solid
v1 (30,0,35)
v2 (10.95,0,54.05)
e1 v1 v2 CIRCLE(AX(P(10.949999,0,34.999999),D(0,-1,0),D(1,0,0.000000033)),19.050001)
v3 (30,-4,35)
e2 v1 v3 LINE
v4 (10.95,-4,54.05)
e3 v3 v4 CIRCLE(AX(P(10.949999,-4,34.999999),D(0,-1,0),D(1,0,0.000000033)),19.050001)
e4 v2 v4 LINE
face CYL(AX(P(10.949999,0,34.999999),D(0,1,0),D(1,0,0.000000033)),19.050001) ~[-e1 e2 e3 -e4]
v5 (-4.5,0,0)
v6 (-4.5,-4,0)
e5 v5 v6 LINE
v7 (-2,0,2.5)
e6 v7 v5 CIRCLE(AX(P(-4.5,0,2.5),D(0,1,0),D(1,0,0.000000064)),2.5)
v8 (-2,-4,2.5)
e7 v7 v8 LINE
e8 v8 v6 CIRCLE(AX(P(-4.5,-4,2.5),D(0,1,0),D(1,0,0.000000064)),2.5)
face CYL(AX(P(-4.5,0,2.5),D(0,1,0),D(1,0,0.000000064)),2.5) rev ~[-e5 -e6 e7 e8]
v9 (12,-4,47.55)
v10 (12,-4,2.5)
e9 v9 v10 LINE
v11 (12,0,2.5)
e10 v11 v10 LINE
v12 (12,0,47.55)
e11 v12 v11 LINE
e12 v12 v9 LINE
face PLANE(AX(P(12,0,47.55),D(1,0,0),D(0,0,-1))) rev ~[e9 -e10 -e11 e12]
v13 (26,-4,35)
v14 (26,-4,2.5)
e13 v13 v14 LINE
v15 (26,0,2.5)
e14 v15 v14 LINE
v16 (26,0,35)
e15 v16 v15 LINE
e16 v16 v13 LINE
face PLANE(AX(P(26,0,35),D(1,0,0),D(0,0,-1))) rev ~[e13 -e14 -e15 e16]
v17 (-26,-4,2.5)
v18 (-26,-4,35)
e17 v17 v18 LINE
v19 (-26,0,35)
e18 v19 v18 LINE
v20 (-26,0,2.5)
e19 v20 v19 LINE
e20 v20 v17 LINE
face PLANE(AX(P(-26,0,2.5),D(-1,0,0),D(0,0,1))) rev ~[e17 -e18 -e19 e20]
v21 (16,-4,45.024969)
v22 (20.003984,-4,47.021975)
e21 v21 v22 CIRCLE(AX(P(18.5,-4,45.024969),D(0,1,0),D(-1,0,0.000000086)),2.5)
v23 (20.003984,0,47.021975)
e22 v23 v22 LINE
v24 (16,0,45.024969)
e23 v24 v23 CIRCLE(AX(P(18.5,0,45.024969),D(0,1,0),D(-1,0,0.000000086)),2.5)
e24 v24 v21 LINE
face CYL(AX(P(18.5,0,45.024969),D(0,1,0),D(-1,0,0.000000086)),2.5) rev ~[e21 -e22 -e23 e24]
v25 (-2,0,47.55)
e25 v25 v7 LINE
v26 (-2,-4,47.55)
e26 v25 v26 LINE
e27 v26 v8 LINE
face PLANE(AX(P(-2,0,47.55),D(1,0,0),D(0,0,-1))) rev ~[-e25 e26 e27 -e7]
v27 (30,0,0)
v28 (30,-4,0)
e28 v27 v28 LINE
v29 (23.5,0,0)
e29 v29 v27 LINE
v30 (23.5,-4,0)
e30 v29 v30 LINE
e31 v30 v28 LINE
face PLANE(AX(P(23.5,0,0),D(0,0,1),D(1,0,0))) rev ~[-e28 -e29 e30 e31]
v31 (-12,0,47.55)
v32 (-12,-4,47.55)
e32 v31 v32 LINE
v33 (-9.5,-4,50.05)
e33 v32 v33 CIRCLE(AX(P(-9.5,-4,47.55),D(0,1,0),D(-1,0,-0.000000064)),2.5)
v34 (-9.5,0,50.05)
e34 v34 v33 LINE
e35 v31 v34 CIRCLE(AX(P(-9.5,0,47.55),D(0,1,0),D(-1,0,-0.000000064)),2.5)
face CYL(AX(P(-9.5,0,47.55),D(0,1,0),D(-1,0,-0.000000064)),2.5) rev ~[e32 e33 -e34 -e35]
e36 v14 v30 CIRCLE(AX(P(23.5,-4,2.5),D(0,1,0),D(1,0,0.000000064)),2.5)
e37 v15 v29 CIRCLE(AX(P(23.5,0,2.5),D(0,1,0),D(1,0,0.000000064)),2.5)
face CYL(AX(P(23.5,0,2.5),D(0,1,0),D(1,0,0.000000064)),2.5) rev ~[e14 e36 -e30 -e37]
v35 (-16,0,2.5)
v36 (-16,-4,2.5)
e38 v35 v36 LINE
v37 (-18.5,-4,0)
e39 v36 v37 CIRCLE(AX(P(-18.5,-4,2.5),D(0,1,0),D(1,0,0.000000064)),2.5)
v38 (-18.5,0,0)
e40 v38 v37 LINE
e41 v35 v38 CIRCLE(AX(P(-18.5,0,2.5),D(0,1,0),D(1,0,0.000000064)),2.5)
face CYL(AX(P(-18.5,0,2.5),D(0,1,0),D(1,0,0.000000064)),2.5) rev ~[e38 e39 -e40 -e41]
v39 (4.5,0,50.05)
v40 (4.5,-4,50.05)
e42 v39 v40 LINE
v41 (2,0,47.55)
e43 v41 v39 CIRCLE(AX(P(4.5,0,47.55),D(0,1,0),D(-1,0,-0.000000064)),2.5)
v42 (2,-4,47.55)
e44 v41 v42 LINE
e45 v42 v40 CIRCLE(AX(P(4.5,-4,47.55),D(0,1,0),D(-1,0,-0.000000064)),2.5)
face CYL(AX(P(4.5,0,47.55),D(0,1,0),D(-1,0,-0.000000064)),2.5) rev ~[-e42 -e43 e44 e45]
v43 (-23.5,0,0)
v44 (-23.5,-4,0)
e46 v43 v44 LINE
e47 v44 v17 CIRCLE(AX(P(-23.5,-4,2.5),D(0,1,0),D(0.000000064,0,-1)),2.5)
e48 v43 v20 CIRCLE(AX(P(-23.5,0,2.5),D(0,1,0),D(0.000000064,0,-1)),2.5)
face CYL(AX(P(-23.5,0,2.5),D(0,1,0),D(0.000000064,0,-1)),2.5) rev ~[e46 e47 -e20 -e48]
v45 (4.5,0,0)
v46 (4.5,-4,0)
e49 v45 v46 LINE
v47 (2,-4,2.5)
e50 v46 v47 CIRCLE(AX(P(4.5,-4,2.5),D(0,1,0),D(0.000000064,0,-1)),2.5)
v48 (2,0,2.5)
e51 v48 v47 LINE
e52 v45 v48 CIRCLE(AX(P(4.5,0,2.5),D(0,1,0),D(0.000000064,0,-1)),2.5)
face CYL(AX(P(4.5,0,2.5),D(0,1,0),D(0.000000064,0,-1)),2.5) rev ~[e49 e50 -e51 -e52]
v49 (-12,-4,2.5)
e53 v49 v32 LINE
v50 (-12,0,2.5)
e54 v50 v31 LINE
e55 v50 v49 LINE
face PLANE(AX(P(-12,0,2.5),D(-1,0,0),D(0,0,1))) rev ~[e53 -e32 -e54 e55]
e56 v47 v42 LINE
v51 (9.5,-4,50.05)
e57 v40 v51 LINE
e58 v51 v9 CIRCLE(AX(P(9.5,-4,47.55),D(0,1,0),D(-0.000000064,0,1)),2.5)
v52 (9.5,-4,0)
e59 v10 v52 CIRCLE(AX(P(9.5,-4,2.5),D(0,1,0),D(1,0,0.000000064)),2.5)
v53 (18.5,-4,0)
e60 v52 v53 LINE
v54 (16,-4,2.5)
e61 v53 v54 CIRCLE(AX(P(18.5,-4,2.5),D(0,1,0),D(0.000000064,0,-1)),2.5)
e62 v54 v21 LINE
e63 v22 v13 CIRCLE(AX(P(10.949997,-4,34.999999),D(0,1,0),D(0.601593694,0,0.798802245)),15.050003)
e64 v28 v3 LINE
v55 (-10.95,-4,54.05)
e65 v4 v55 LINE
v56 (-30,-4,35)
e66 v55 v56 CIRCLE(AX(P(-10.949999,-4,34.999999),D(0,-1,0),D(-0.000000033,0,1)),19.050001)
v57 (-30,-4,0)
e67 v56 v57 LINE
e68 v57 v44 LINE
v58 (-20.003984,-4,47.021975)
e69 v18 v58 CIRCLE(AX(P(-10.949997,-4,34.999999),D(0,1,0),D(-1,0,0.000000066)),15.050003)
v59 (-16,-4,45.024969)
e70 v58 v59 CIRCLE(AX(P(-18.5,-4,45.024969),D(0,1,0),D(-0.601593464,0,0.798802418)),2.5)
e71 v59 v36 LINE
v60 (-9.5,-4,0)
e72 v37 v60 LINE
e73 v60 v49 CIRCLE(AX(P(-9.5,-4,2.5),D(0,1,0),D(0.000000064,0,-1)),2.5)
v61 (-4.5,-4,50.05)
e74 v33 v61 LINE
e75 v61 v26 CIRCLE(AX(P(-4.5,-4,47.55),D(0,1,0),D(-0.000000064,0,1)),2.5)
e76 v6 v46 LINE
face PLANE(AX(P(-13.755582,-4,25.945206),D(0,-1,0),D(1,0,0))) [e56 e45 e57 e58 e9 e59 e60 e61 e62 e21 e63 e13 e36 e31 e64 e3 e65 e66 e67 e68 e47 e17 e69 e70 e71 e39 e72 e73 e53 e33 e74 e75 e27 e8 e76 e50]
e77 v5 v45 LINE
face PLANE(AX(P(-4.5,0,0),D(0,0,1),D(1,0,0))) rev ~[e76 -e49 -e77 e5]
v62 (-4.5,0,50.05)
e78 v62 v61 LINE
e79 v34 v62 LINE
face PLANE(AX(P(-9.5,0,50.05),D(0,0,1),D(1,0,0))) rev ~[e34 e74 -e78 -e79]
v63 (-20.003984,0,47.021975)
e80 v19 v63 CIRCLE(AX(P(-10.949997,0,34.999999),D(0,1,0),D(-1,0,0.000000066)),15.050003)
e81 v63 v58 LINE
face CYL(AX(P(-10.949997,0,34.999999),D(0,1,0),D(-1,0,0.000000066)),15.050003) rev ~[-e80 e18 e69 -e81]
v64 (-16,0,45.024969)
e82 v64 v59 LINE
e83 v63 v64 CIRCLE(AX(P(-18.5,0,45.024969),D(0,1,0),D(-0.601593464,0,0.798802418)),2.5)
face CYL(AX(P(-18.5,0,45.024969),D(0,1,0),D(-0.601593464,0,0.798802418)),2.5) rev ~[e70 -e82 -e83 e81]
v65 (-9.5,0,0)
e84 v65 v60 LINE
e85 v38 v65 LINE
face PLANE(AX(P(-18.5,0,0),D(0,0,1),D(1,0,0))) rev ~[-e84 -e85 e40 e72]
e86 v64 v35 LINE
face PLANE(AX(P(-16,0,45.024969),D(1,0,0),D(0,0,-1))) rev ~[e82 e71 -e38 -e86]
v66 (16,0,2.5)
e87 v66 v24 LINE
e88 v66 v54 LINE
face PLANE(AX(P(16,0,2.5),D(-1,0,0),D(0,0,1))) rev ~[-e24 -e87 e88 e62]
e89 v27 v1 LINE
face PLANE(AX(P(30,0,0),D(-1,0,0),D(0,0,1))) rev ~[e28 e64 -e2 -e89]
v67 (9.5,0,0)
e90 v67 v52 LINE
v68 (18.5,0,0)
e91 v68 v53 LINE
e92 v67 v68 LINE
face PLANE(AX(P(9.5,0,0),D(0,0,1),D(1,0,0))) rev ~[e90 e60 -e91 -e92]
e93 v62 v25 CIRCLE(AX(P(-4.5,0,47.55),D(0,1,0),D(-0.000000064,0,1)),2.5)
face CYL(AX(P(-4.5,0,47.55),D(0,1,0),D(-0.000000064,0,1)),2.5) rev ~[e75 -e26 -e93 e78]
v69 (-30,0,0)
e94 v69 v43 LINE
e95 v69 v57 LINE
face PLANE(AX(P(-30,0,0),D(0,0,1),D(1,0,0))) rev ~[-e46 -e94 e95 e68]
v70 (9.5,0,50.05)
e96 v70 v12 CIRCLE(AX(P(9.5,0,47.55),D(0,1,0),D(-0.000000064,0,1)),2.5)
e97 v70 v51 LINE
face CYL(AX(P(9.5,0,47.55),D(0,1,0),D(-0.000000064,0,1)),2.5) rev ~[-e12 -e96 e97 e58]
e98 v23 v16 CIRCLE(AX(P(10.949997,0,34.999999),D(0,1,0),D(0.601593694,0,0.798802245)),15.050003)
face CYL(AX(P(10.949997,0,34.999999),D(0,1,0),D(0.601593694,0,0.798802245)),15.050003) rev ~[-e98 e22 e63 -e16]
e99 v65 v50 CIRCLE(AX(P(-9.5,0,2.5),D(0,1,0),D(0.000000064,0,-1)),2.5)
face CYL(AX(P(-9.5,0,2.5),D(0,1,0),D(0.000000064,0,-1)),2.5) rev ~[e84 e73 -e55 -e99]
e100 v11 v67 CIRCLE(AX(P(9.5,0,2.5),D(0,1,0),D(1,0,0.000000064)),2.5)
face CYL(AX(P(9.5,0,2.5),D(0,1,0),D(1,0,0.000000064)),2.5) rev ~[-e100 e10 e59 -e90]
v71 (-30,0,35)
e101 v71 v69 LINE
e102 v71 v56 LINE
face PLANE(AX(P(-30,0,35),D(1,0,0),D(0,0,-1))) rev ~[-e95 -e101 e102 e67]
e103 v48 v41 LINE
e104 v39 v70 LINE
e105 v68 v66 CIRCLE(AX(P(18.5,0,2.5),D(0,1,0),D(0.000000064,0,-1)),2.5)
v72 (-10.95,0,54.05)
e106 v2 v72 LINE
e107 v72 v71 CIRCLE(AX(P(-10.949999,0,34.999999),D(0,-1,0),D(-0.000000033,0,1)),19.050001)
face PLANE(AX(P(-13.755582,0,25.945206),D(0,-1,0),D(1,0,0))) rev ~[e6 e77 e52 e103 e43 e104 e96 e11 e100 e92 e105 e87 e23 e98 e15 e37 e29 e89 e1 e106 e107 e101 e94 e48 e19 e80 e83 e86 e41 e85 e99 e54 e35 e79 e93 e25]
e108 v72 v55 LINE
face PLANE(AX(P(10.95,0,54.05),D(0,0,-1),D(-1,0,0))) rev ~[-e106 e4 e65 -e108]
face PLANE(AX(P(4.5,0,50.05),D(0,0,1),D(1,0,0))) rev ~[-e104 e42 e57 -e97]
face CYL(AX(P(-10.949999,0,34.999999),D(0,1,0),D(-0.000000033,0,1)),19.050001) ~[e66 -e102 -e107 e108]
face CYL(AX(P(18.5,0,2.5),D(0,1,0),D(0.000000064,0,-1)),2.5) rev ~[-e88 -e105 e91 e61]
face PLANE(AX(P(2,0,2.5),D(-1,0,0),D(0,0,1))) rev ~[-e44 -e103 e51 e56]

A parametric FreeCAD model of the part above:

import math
import FreeCAD as App
import Part
import Sketcher
Q = App.Units.Quantity

doc = App.newDocument("Part")
body = doc.addObject("PartDesign::Body", "Body")

# Sketch on XZ plane
sketch1 = doc.addObject("Sketcher::SketchObject", "Sketch")
body.addObject(sketch1)
sketch1.AttachmentSupport = (doc.XZ_Plane, [""])
sketch1.MapMode = "FlatFace"
sketch1.addGeometry([
    Part.LineSegment(App.Vector(-4.5, 0, 0), App.Vector(4.5, 0, 0)),  # 0
    Part.ArcOfCircle(Part.Circle(App.Vector(4.5, 2.5, 0), App.Vector(0, 0, 1), 2.5), math.radians(179.999996), math.radians(270.000004)),  # 1
    Part.LineSegment(App.Vector(2, 2.5, 0), App.Vector(2, 47.55, 0)),  # 2
    Part.ArcOfCircle(Part.Circle(App.Vector(4.5, 47.55, 0), App.Vector(0, 0, 1), 2.5), math.radians(89.999996), math.radians(180.000004)),  # 3
    Part.LineSegment(App.Vector(4.5, 50.05, 0), App.Vector(9.5, 50.05, 0)),  # 4
    Part.ArcOfCircle(Part.Circle(App.Vector(9.5, 47.55, 0), App.Vector(0, 0, 1), 2.5), math.radians(-0.000004), math.radians(90.000004)),  # 5
    Part.LineSegment(App.Vector(12, 47.55, 0), App.Vector(12, 2.5, 0)),  # 6
    Part.ArcOfCircle(Part.Circle(App.Vector(9.5, 2.5, 0), App.Vector(0, 0, 1), 2.5), math.radians(-90.000004), math.radians(0.000004)),  # 7
    Part.LineSegment(App.Vector(9.5, 0, 0), App.Vector(18.5, 0, 0)),  # 8
    Part.ArcOfCircle(Part.Circle(App.Vector(18.5, 2.5, 0), App.Vector(0, 0, 1), 2.5), math.radians(179.999996), math.radians(270.000004)),  # 9
    Part.LineSegment(App.Vector(16, 2.5, 0), App.Vector(16, 45.024969, 0)),  # 10
    Part.ArcOfCircle(Part.Circle(App.Vector(18.5, 45.024969, 0), App.Vector(0, 0, 1), 2.5), math.radians(53.015893), math.radians(179.999995)),  # 11
    Part.ArcOfCircle(Part.Circle(App.Vector(10.949997, 34.999999, 0), App.Vector(0, 0, 1), 15.050003), math.radians(0.000004), math.radians(53.015877)),  # 12
    Part.LineSegment(App.Vector(26, 35, 0), App.Vector(26, 2.5, 0)),  # 13
    Part.ArcOfCircle(Part.Circle(App.Vector(23.5, 2.5, 0), App.Vector(0, 0, 1), 2.5), math.radians(-90.000004), math.radians(0.000004)),  # 14
    Part.LineSegment(App.Vector(23.5, 0, 0), App.Vector(30, 0, 0)),  # 15
    Part.LineSegment(App.Vector(30, 0, 0), App.Vector(30, 35, 0)),  # 16
    Part.ArcOfCircle(Part.Circle(App.Vector(10.949999, 34.999999, 0), App.Vector(0, 0, 1), 19.050001), math.radians(0.000002), math.radians(89.999998)),  # 17
    Part.LineSegment(App.Vector(10.95, 54.05, 0), App.Vector(-10.95, 54.05, 0)),  # 18
    Part.ArcOfCircle(Part.Circle(App.Vector(-10.949999, 34.999999, 0), App.Vector(0, 0, 1), 19.050001), math.radians(90.000002), math.radians(179.999998)),  # 19
    Part.LineSegment(App.Vector(-30, 35, 0), App.Vector(-30, 0, 0)),  # 20
    Part.LineSegment(App.Vector(-30, 0, 0), App.Vector(-23.5, 0, 0)),  # 21
    Part.ArcOfCircle(Part.Circle(App.Vector(-23.5, 2.5, 0), App.Vector(0, 0, 1), 2.5), math.radians(179.999996), math.radians(270.000004)),  # 22
    Part.LineSegment(App.Vector(-26, 2.5, 0), App.Vector(-26, 35, 0)),  # 23
    Part.ArcOfCircle(Part.Circle(App.Vector(-10.949997, 34.999999, 0), App.Vector(0, 0, 1), 15.050003), math.radians(126.984123), math.radians(179.999996)),  # 24
    Part.ArcOfCircle(Part.Circle(App.Vector(-18.5, 45.024969, 0), App.Vector(0, 0, 1), 2.5), math.radians(0.000005), math.radians(126.984107)),  # 25
    Part.LineSegment(App.Vector(-16, 45.024969, 0), App.Vector(-16, 2.5, 0)),  # 26
    Part.ArcOfCircle(Part.Circle(App.Vector(-18.5, 2.5, 0), App.Vector(0, 0, 1), 2.5), math.radians(-90.000004), math.radians(0.000004)),  # 27
    Part.LineSegment(App.Vector(-18.5, 0, 0), App.Vector(-9.5, 0, 0)),  # 28
    Part.ArcOfCircle(Part.Circle(App.Vector(-9.5, 2.5, 0), App.Vector(0, 0, 1), 2.5), math.radians(179.999996), math.radians(270.000004)),  # 29
    Part.LineSegment(App.Vector(-12, 2.5, 0), App.Vector(-12, 47.55, 0)),  # 30
    Part.ArcOfCircle(Part.Circle(App.Vector(-9.5, 47.55, 0), App.Vector(0, 0, 1), 2.5), math.radians(89.999996), math.radians(180.000004)),  # 31
    Part.LineSegment(App.Vector(-9.5, 50.05, 0), App.Vector(-4.5, 50.05, 0)),  # 32
    Part.ArcOfCircle(Part.Circle(App.Vector(-4.5, 47.55, 0), App.Vector(0, 0, 1), 2.5), math.radians(-0.000004), math.radians(90.000004)),  # 33
    Part.LineSegment(App.Vector(-2, 47.55, 0), App.Vector(-2, 2.5, 0)),  # 34
    Part.ArcOfCircle(Part.Circle(App.Vector(-4.5, 2.5, 0), App.Vector(0, 0, 1), 2.5), math.radians(-90.000004), math.radians(0.000004)),  # 35
], False)
sketch1.addConstraint([
    Sketcher.Constraint("Tangent", 0, 2, 1, 2),
    Sketcher.Constraint("Tangent", 1, 1, 2, 1),
    Sketcher.Constraint("Tangent", 2, 2, 3, 2),
    Sketcher.Constraint("Tangent", 3, 1, 4, 1),
    Sketcher.Constraint("Tangent", 4, 2, 5, 2),
    Sketcher.Constraint("Tangent", 5, 1, 6, 1),
    Sketcher.Constraint("Tangent", 6, 2, 7, 2),
    Sketcher.Constraint("Tangent", 7, 1, 8, 1),
    Sketcher.Constraint("Tangent", 8, 2, 9, 2),
    Sketcher.Constraint("Tangent", 9, 1, 10, 1),
    Sketcher.Constraint("Tangent", 10, 2, 11, 2),
    Sketcher.Constraint("Tangent", 11, 1, 12, 2),
    Sketcher.Constraint("Tangent", 12, 1, 13, 1),
    Sketcher.Constraint("Tangent", 13, 2, 14, 2),
    Sketcher.Constraint("Tangent", 14, 1, 15, 1),
    Sketcher.Constraint("Coincident", 15, 2, 16, 1),
    Sketcher.Constraint("Tangent", 16, 2, 17, 1),
    Sketcher.Constraint("Tangent", 17, 2, 18, 1),
    Sketcher.Constraint("Tangent", 18, 2, 19, 1),
    Sketcher.Constraint("Tangent", 19, 2, 20, 1),
    Sketcher.Constraint("Coincident", 20, 2, 21, 1),
    Sketcher.Constraint("Tangent", 21, 2, 22, 2),
    Sketcher.Constraint("Tangent", 22, 1, 23, 1),
    Sketcher.Constraint("Tangent", 23, 2, 24, 2),
    Sketcher.Constraint("Tangent", 24, 1, 25, 2),
    Sketcher.Constraint("Tangent", 25, 1, 26, 1),
    Sketcher.Constraint("Tangent", 26, 2, 27, 2),
    Sketcher.Constraint("Tangent", 27, 1, 28, 1),
    Sketcher.Constraint("Tangent", 28, 2, 29, 2),
    Sketcher.Constraint("Tangent", 29, 1, 30, 1),
    Sketcher.Constraint("Tangent", 30, 2, 31, 2),
    Sketcher.Constraint("Tangent", 31, 1, 32, 1),
    Sketcher.Constraint("Tangent", 32, 2, 33, 2),
    Sketcher.Constraint("Tangent", 33, 1, 34, 1),
    Sketcher.Constraint("Tangent", 34, 2, 35, 2),
    Sketcher.Constraint("Tangent", 35, 1, 0, 1),
    Sketcher.Constraint("Horizontal", 0),
    Sketcher.Constraint("Vertical", 2),
    Sketcher.Constraint("Horizontal", 4),
    Sketcher.Constraint("Vertical", 6),
    Sketcher.Constraint("Horizontal", 8),
    Sketcher.Constraint("Vertical", 10),
    Sketcher.Constraint("Vertical", 13),
    Sketcher.Constraint("Horizontal", 15),
    Sketcher.Constraint("Vertical", 16),
    Sketcher.Constraint("Horizontal", 18),
    Sketcher.Constraint("Vertical", 20),
    Sketcher.Constraint("Horizontal", 21),
    Sketcher.Constraint("Vertical", 23),
    Sketcher.Constraint("Vertical", 26),
    Sketcher.Constraint("Horizontal", 28),
    Sketcher.Constraint("Vertical", 30),
    Sketcher.Constraint("Horizontal", 32),
    Sketcher.Constraint("Vertical", 34),
    Sketcher.Constraint("Coincident", 17, 3, 12, 3),
    Sketcher.Constraint("Coincident", 24, 3, 19, 3),
    Sketcher.Constraint("Equal", 1, 3),
    Sketcher.Constraint("Equal", 3, 5),
    Sketcher.Constraint("Equal", 5, 7),
    Sketcher.Constraint("Equal", 7, 9),
    Sketcher.Constraint("Equal", 9, 11),
    Sketcher.Constraint("Equal", 11, 14),
    Sketcher.Constraint("Equal", 17, 19),
    Sketcher.Constraint("Equal", 14, 22),
    Sketcher.Constraint("Equal", 12, 24),
    Sketcher.Constraint("Equal", 22, 25),
    Sketcher.Constraint("Equal", 25, 27),
    Sketcher.Constraint("Equal", 27, 29),
    Sketcher.Constraint("Equal", 29, 31),
    Sketcher.Constraint("Equal", 31, 33),
    Sketcher.Constraint("Equal", 33, 35),
    Sketcher.Constraint("Symmetric", 15, 2, 20, 2, -1, 1),
    Sketcher.Constraint("Symmetric", 8, 2, 27, 1, -1, 1),
    Sketcher.Constraint("Symmetric", 0, 2, 35, 1, -1, 1),
    Sketcher.Constraint("Symmetric", 7, 3, 29, 3, -2),
    Sketcher.Constraint("PointOnObject", 14, 1, -1),
    Sketcher.Constraint("Horizontal", 5, 3, 31, 3),
    Sketcher.Constraint("Equal", 0, 8),
    Sketcher.Constraint("Radius", 1, Q("2.5 mm")),
    Sketcher.Constraint("DistanceX", 0, 1, 0, 2, Q("9 mm")),
    Sketcher.Constraint("DistanceX", 4, 1, 4, 2, Q("5 mm")),
    Sketcher.Constraint("DistanceY", 16, 1, 16, 2, Q("35 mm")),
    Sketcher.Constraint("Radius", 17, Q("19.050001 mm")),
    Sketcher.Constraint("DistanceX", 15, 1, 15, 2, Q("6.5 mm")),
    Sketcher.Constraint("DistanceX", 18, 2, 18, 1, Q("21.9 mm")),
    Sketcher.Constraint("DistanceY", 4, 2, 17, 2, Q("4 mm")),
])
pad1 = doc.addObject("PartDesign::Pad", "Pad")
body.addObject(pad1)
pad1.Profile = sketch1
pad1.Length = 4

doc.recompute()
